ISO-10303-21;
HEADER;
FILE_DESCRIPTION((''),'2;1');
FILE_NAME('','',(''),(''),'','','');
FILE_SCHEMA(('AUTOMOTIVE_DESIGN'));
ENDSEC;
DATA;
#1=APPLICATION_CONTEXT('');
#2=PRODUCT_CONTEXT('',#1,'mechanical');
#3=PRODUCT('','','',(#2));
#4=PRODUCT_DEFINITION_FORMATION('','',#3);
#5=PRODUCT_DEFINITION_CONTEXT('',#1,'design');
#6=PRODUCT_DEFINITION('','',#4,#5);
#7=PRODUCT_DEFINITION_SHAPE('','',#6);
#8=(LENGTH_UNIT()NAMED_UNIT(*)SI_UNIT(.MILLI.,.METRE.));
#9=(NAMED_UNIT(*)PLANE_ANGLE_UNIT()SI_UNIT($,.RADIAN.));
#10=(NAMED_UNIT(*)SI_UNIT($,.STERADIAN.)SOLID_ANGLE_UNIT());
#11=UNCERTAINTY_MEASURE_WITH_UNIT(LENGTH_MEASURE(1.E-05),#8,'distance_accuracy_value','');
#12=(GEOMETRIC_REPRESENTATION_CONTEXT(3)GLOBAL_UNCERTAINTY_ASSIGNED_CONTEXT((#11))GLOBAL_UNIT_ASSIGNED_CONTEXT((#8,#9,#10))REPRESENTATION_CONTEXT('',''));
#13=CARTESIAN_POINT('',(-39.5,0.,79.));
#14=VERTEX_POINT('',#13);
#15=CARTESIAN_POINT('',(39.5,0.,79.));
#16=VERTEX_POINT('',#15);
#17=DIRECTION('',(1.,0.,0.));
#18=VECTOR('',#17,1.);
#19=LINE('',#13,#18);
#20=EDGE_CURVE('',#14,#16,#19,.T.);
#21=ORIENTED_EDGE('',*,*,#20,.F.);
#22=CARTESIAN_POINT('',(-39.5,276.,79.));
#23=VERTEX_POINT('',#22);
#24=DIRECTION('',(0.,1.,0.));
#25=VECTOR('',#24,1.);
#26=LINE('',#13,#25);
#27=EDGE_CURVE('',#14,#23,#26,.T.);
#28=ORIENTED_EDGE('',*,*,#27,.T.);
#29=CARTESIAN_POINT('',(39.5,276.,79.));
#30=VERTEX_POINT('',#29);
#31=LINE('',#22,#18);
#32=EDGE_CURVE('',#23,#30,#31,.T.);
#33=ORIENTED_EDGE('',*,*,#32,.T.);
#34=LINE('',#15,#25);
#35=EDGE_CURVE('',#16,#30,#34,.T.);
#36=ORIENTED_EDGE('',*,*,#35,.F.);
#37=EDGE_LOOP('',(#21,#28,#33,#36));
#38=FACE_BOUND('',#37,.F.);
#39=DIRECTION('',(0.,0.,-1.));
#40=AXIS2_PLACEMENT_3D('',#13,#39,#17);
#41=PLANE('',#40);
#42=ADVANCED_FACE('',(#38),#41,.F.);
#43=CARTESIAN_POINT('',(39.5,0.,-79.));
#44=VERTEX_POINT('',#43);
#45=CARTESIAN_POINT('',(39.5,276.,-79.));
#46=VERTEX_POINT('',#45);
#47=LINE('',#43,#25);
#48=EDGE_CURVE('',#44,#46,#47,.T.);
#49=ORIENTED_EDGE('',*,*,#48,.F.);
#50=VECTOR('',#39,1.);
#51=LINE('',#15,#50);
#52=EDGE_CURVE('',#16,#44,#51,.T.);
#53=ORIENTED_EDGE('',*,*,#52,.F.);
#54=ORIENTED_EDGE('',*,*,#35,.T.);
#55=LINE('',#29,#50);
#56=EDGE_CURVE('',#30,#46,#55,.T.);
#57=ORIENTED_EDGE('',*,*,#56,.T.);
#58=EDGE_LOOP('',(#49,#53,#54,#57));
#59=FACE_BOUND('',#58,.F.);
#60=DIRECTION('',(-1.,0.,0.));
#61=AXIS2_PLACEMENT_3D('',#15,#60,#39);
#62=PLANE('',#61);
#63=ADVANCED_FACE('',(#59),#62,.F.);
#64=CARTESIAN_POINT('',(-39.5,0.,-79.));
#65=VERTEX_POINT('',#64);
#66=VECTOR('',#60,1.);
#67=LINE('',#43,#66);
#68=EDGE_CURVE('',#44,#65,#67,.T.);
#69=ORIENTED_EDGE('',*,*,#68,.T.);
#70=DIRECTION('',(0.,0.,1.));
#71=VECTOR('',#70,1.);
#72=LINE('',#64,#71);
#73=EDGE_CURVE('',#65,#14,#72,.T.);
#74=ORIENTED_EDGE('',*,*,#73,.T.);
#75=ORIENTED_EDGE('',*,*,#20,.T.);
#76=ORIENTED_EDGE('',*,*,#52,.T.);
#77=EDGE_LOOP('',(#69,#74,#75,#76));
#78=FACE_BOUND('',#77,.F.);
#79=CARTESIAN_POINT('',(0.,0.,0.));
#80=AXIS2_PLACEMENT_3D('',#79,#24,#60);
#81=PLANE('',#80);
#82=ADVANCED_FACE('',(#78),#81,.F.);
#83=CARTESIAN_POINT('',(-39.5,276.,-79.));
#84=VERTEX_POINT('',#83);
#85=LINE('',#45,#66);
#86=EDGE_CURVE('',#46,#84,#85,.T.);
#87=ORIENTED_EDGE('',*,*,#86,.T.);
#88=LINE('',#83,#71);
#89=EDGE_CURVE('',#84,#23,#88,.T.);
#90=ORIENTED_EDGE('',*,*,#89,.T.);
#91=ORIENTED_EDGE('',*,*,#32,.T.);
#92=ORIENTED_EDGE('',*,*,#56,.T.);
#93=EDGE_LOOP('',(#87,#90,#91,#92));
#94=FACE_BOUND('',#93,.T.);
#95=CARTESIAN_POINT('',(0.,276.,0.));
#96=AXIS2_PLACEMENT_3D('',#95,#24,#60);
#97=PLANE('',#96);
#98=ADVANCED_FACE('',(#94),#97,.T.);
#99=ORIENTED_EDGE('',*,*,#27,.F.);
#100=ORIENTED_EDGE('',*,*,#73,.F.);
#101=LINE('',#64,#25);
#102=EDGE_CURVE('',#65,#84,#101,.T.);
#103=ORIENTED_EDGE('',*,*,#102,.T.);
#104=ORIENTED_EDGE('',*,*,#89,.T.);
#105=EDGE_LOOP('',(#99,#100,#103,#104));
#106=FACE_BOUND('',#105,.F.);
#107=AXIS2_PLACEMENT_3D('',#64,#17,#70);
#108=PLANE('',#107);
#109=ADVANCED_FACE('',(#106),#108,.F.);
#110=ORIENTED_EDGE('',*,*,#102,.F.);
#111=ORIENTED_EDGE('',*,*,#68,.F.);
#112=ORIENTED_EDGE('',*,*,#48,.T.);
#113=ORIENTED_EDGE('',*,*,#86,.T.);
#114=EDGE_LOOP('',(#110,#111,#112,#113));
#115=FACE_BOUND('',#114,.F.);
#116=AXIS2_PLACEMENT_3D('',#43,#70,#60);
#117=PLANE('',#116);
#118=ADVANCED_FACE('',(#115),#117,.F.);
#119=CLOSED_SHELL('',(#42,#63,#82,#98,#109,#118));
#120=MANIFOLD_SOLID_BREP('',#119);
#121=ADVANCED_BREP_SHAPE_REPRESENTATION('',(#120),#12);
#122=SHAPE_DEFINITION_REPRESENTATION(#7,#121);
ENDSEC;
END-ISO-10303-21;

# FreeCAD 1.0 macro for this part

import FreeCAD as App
import Part
import Sketcher

V = App.Vector

doc = App.newDocument("Part")
params = doc.addObject("Spreadsheet::Sheet", "Params")
for row, (alias, value) in enumerate([
    ("sketch1_width", "79 mm"),
    ("sketch1_height", "158 mm"),
    ("pad1_length", "276 mm"),
], start=1):
    params.set(f"A{row}", alias)
    params.set(f"B{row}", "=" + value)
    params.setAlias(f"B{row}", alias)

body = doc.addObject("PartDesign::Body", "Body")

# Sketch on XZ plane
sketch1 = doc.addObject("Sketcher::SketchObject", "Sketch")
body.addObject(sketch1)
sketch1.AttachmentSupport = (doc.XZ_Plane, [""])
sketch1.MapMode = "FlatFace"
sketch1.addGeometry(Part.LineSegment(V(-40, -79, 0), V(-40, 79, 0)), False)
sketch1.addGeometry(Part.LineSegment(V(-40, 79, 0), V(40, 79, 0)), False)
sketch1.addGeometry(Part.LineSegment(V(40, 79, 0), V(40, -79, 0)), False)
sketch1.addGeometry(Part.LineSegment(V(40, -79, 0), V(-40, -79, 0)), False)
sketch1.addConstraint(Sketcher.Constraint("Coincident", 0, 2, 1, 1))
sketch1.addConstraint(Sketcher.Constraint("Coincident", 1, 2, 2, 1))
sketch1.addConstraint(Sketcher.Constraint("Coincident", 2, 2, 3, 1))
sketch1.addConstraint(Sketcher.Constraint("Coincident", 3, 2, 0, 1))
sketch1.addConstraint(Sketcher.Constraint("Vertical", 0))
sketch1.addConstraint(Sketcher.Constraint("Horizontal", 1))
sketch1.addConstraint(Sketcher.Constraint("Vertical", 2))
sketch1.addConstraint(Sketcher.Constraint("Horizontal", 3))
sketch1.addConstraint(Sketcher.Constraint("Symmetric", 0, 2, 2, 2, -1, 1))
sketch1.addConstraint(Sketcher.Constraint("DistanceX", 1, 1, 1, 2, 79.0))
sketch1.addConstraint(Sketcher.Constraint("DistanceY", 0, 1, 0, 2, 158.0))
sketch1.setExpression("Constraints[9]", "Params.sketch1_width")
sketch1.setExpression("Constraints[10]", "Params.sketch1_height")
pad1 = doc.addObject("PartDesign::Pad", "Pad")
body.addObject(pad1)
pad1.Profile = sketch1
pad1.setExpression("Length", "Params.pad1_length")
pad1.Reversed = True

doc.recompute()
